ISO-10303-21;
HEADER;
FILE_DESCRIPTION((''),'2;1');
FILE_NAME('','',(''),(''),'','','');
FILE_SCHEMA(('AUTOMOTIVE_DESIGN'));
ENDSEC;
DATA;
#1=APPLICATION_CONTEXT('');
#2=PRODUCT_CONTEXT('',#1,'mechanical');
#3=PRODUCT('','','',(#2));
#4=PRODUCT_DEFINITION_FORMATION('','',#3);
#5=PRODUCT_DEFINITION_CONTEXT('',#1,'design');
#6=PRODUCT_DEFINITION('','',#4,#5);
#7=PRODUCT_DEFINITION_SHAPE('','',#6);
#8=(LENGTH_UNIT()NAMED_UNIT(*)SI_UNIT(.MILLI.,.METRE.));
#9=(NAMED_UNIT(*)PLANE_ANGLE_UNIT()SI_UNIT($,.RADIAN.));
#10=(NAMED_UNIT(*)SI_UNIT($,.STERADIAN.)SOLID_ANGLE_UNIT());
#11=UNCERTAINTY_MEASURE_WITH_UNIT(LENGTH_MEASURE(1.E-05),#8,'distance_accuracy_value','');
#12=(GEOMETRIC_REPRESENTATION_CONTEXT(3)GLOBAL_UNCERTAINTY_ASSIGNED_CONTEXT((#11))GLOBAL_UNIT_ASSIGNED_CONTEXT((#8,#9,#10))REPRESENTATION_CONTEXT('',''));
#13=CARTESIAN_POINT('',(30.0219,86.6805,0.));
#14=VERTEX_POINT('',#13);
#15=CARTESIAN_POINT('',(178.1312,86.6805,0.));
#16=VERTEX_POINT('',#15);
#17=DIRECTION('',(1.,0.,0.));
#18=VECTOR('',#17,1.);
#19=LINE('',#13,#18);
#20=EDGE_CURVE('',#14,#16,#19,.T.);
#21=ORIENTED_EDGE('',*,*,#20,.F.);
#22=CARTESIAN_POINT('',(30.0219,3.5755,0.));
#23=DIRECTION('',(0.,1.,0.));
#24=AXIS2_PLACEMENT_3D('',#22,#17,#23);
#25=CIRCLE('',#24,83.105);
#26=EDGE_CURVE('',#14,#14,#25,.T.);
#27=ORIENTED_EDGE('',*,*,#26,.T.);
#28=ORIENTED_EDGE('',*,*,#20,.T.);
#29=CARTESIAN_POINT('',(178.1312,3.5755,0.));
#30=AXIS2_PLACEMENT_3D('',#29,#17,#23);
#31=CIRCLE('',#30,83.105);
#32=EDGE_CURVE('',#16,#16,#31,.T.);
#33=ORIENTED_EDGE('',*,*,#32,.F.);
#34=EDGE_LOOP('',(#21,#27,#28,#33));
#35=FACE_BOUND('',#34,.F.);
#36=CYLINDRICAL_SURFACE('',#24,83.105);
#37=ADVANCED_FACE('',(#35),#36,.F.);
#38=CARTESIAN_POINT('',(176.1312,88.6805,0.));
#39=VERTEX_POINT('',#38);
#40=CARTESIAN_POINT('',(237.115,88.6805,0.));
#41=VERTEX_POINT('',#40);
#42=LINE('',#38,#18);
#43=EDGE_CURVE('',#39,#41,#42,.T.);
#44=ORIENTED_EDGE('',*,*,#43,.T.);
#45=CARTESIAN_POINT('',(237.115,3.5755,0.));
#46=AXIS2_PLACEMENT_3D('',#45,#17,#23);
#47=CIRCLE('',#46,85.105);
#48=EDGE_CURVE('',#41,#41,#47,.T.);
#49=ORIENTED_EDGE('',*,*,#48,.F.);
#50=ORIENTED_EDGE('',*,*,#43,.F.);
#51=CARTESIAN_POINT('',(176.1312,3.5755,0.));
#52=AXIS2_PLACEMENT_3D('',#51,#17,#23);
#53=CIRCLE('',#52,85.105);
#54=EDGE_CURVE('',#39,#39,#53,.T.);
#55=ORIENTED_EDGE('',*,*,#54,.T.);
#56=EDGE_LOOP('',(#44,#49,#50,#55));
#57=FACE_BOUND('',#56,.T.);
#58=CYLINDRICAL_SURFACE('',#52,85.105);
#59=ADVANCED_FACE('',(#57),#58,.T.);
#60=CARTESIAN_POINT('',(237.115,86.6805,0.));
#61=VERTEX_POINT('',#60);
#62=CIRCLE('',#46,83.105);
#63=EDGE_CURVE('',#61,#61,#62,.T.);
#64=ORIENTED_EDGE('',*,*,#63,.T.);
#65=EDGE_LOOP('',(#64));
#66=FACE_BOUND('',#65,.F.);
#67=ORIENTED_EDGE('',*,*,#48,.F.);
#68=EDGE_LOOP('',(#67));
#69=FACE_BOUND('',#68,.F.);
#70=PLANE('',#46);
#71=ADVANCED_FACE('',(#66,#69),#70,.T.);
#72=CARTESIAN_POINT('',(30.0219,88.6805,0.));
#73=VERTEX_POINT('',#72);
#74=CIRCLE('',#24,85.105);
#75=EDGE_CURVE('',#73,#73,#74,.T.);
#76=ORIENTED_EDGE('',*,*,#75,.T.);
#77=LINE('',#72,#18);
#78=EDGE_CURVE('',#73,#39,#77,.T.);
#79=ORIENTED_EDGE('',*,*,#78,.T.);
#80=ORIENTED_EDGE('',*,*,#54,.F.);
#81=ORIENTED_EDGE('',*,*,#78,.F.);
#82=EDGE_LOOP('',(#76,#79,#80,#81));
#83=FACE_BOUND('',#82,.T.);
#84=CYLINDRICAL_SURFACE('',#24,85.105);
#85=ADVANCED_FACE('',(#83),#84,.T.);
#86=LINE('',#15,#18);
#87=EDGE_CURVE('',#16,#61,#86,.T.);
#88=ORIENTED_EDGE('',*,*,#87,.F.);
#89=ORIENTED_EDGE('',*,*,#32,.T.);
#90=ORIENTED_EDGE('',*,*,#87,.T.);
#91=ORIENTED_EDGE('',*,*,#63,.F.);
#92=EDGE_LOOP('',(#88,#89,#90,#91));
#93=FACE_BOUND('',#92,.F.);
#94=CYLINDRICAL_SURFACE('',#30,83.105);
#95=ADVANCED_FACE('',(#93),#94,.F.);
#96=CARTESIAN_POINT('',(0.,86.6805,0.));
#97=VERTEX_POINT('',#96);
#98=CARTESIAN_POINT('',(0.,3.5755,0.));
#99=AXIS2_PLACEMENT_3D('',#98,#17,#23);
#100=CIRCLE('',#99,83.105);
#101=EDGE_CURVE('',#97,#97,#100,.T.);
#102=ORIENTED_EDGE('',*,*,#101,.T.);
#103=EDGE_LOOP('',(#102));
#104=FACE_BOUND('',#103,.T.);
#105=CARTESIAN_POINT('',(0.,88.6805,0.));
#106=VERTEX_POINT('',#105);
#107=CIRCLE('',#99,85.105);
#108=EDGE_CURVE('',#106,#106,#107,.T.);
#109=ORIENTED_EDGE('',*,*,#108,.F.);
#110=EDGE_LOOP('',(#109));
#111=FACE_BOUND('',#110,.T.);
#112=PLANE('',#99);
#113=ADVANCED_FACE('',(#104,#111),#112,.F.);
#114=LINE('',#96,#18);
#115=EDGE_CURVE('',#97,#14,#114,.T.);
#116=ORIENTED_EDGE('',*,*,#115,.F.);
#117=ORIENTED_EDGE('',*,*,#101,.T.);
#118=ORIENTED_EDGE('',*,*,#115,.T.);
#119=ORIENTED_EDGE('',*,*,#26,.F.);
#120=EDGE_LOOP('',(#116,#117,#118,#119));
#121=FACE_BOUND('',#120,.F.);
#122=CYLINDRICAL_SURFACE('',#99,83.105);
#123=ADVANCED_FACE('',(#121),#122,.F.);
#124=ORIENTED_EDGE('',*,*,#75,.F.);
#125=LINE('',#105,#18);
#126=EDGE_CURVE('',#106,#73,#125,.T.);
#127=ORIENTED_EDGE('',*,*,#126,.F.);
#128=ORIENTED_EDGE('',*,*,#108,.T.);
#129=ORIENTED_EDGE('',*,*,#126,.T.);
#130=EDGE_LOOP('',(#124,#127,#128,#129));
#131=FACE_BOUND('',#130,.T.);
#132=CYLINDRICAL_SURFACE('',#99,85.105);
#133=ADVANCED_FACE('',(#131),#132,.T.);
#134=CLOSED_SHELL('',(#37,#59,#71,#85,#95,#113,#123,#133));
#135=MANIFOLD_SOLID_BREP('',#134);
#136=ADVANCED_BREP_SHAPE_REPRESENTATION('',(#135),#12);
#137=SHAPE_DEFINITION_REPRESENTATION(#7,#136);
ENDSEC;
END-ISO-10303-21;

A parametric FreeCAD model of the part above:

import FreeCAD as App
import Part
import Sketcher

doc = App.newDocument("Part")
body = doc.addObject("PartDesign::Body", "Body")

# Sketch on XY plane
sketch1 = body.newObject("Sketcher::SketchObject", "Sketch")
sketch1.AttachmentSupport = (doc.getObject("XY_Plane"), [""])
sketch1.MapMode = "FlatFace"
sketch1.addGeometry(Part.LineSegment(App.Vector(0, 88.7, 0), App.Vector(0, 86.7, 0)), False)
sketch1.addGeometry(Part.LineSegment(App.Vector(0, 86.7, 0), App.Vector(237.1, 86.7, 0)), False)
sketch1.addGeometry(Part.LineSegment(App.Vector(237.1, 86.7, 0), App.Vector(237.1, 88.7, 0)), False)
sketch1.addGeometry(Part.LineSegment(App.Vector(237.1, 88.7, 0), App.Vector(0, 88.7, 0)), False)
sketch1.addGeometry(Part.LineSegment(App.Vector(0, 3.6, 0), App.Vector(237.1, 3.6, 0)), True)  # axis
sketch1.addConstraint(Sketcher.Constraint("Coincident", 0, 2, 1, 1))
sketch1.addConstraint(Sketcher.Constraint("Coincident", 1, 2, 2, 1))
sketch1.addConstraint(Sketcher.Constraint("Coincident", 2, 2, 3, 1))
sketch1.addConstraint(Sketcher.Constraint("Coincident", 3, 2, 0, 1))
sketch1.addConstraint(Sketcher.Constraint("Vertical", 0))
sketch1.addConstraint(Sketcher.Constraint("Horizontal", 1))
sketch1.addConstraint(Sketcher.Constraint("Vertical", 2))
sketch1.addConstraint(Sketcher.Constraint("Horizontal", 3))
sketch1.addConstraint(Sketcher.Constraint("Horizontal", 4))
sketch1.addConstraint(Sketcher.Constraint("PointOnObject", 0, 2, -2))
sketch1.addConstraint(Sketcher.Constraint("PointOnObject", 4, 1, -2))
sketch1.addConstraint(Sketcher.Constraint("Vertical", 2, 2, 4, 2))
sketch1.addConstraint(Sketcher.Constraint("DistanceY", 0, 2, 0, 1, 2.0))
sketch1.addConstraint(Sketcher.Constraint("DistanceX", 1, 1, 1, 2, 237.115))
sketch1.addConstraint(Sketcher.Constraint("DistanceY", 4, 1, 0, 2, 83.105))
sketch1.addConstraint(Sketcher.Constraint("DistanceY", -1, 1, 0, 2, 86.6805))
revolution = body.newObject("PartDesign::Revolution", "Revolution")
revolution.Profile = sketch1
revolution.ReferenceAxis = (sketch1, ["Axis0"])
revolution.Angle = 360

doc.recompute()
